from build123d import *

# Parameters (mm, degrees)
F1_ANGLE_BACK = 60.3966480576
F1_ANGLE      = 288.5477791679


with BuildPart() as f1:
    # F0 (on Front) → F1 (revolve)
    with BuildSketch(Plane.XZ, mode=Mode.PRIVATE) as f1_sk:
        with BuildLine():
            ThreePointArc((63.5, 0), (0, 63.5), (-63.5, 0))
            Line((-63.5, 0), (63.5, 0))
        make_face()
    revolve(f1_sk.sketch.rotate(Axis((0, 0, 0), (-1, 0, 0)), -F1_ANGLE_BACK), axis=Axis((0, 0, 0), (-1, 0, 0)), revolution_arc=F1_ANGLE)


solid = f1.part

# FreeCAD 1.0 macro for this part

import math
import FreeCAD as App
import Part
import Sketcher
from FreeCAD import Vector
Q = App.Units.Quantity

doc = App.newDocument("Part")
body = doc.addObject("PartDesign::Body", "Body")

# Sketch on an angled plane
sketch1 = doc.addObject("Sketcher::SketchObject", "Sketch")
body.addObject(sketch1)
sketch1.Placement = App.Placement(Vector(0, 0, 0), App.Rotation(Vector(1, 0, 0), Vector(0, -0.869466031, 0.493992733), Vector(0, -0.493992733, -0.869466031), "ZXY"))
sketch1.addGeometry(Part.ArcOfCircle(Part.Circle(Vector(0, 0, 0), Vector(0, 0, 1), 63.5), math.radians(0), math.radians(180)), False)
sketch1.addGeometry(Part.LineSegment(Vector(-63.5, 0, 0), Vector(63.5, 0, 0)), False)
sketch1.addConstraint(Sketcher.Constraint("Coincident", 0, 1, 1, 2))
sketch1.addConstraint(Sketcher.Constraint("Coincident", 1, 1, 0, 2))
sketch1.addConstraint(Sketcher.Constraint("Horizontal", 1))
sketch1.addConstraint(Sketcher.Constraint("Coincident", 0, 3, -1, 1))
sketch1.addConstraint(Sketcher.Constraint("PointOnObject", 0, 1, -1))
sketch1.addConstraint(Sketcher.Constraint("Radius", 0, Q("2.5 in")))
revolution = doc.addObject("PartDesign::Revolution", "Revolution")
body.addObject(revolution)
revolution.Profile = sketch1
revolution.ReferenceAxis = (sketch1, ["H_Axis"])
revolution.Angle = 288.547779
revolution.Reversed = True

doc.recompute()
